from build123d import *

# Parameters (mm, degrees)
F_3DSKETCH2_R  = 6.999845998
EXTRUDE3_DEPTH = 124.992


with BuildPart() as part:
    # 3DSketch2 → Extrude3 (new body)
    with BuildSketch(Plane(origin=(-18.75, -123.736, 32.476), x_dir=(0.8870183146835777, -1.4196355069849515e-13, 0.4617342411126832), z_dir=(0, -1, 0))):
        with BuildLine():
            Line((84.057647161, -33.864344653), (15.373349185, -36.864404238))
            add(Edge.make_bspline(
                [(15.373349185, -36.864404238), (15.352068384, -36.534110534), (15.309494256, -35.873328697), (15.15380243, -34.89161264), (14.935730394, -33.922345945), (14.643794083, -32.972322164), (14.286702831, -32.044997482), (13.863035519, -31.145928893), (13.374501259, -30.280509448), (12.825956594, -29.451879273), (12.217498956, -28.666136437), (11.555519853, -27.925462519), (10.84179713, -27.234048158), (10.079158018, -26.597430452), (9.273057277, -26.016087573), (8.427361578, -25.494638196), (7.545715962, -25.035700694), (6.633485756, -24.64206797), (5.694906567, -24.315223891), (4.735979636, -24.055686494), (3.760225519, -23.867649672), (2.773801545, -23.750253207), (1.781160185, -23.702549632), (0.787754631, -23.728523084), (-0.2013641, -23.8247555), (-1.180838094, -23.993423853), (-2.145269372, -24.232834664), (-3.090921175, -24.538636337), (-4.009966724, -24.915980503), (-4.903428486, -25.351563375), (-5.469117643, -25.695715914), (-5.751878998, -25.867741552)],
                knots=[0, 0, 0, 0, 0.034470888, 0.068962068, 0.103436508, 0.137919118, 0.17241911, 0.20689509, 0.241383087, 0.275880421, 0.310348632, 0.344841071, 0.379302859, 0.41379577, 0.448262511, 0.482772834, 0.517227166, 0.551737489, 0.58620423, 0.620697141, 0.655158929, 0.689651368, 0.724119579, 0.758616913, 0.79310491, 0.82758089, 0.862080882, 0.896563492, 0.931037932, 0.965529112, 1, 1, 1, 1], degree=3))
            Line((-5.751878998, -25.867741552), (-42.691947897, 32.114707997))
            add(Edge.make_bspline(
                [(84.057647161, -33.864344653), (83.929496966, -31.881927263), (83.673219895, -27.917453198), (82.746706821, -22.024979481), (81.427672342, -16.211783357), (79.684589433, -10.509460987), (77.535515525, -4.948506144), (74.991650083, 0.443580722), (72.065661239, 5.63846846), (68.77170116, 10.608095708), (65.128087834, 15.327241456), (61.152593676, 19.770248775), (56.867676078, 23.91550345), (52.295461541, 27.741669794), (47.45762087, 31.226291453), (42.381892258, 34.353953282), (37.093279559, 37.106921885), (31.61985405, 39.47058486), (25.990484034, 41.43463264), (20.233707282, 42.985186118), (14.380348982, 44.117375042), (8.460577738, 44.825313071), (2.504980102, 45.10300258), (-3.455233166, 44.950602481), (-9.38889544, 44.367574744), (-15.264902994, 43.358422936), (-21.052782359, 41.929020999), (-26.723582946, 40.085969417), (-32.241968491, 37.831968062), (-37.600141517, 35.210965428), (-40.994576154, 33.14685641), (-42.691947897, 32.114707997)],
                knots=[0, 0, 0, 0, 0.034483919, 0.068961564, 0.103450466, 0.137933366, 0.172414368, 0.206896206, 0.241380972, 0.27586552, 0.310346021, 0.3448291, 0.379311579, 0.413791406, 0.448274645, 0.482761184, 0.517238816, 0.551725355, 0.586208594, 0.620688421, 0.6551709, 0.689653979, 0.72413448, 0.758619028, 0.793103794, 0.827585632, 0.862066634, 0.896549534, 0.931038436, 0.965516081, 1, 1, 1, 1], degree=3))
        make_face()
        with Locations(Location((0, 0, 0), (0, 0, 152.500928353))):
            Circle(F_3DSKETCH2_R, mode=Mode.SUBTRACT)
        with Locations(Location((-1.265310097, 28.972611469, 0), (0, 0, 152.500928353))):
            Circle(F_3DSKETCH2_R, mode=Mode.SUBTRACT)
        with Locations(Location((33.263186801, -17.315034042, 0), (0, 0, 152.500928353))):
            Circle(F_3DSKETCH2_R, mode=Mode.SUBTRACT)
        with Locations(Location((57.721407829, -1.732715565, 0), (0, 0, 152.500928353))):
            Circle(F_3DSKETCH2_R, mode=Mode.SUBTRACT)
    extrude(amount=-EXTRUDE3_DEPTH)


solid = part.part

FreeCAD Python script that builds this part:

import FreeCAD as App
import Part
import Sketcher

V = App.Vector

doc = App.newDocument("Part")
body = doc.addObject("PartDesign::Body", "Body")

# Sketch on XZ plane
sketch1 = doc.addObject("Sketcher::SketchObject", "Sketch")
body.addObject(sketch1)
sketch1.AttachmentSupport = (doc.XZ_Plane, [""])
sketch1.MapMode = "FlatFace"
sketch1.AttachmentOffset = App.Placement(V(0, 0, 123.736), App.Rotation())
sketch1.addGeometry([
    Part.LineSegment(V(11.908, 6.875, 0), V(71.447, 41.25, 0)),  # 0
    Part.BSplineCurve([V(71.447, 41.25, 0), V(70.417978, 42.949269, 0), V(68.360123, 46.347498, 0), V(64.817532, 51.146428, 0), V(60.963372, 55.693796, 0), V(56.784268, 59.947019, 0), V(52.310317, 63.887387, 0), V(47.564151, 67.495677, 0), V(42.570087, 70.752608, 0), V(37.353637, 73.639824, 0), V(31.942695, 76.143412, 0), V(26.36487, 78.248819, 0), V(20.650063, 79.947243, 0), V(14.827753, 81.229974, 0), V(8.927531, 82.087101, 0), V(2.981118, 82.517757, 0), V(-2.981118, 82.517757, 0), V(-8.927531, 82.087101, 0), V(-14.827753, 81.229974, 0), V(-20.650063, 79.947243, 0), V(-26.36487, 78.248819, 0), V(-31.942694, 76.143412, 0), V(-37.353637, 73.639824, 0), V(-42.570087, 70.752608, 0), V(-47.564151, 67.495677, 0), V(-52.310317, 63.887387, 0), V(-56.784268, 59.947019, 0), V(-60.963372, 55.693796, 0), V(-64.817532, 51.146428, 0), V(-68.360123, 46.347498, 0), V(-70.417978, 42.949269, 0), V(-71.447, 41.25, 0)], [4, 1, 1, 1, 1, 1, 1, 1, 1, 1, 1, 1, 1, 1, 1, 1, 1, 1, 1, 1, 1, 1, 1, 1, 1, 1, 1, 1, 1, 4], [0, 0.034483919, 0.068961564, 0.103450466, 0.137933366, 0.172414368, 0.206896206, 0.241380972, 0.27586552, 0.310346021, 0.3448291, 0.379311579, 0.413791406, 0.448274645, 0.482761184, 0.517238816, 0.551725355, 0.586208594, 0.620688421, 0.6551709, 0.689653979, 0.72413448, 0.758619028, 0.793103794, 0.827585632, 0.862066634, 0.896549534, 0.931038436, 0.965516081, 1], False, 3, [1, 1, 1, 1, 1, 1, 1, 1, 1, 1, 1, 1, 1, 1, 1, 1, 1, 1, 1, 1, 1, 1, 1, 1, 1, 1, 1, 1, 1, 1, 1, 1], False),  # 1
    Part.LineSegment(V(-71.447, 41.25, 0), V(-11.908, 6.875, 0)),  # 2
    Part.BSplineCurve([V(11.908, 6.875, 0), V(11.736616, 7.15815, 0), V(11.393746, 7.724618, 0), V(10.802353, 8.52353, 0), V(10.161375, 9.282596, 0), V(9.463764, 9.990487, 0), V(8.71884, 10.64816, 0), V(7.927908, 11.250029, 0), V(7.094976, 11.792099, 0), V(6.2258, 12.273827, 0), V(5.323282, 12.68985, 0), V(4.3941, 13.041182, 0), V(3.441765, 13.324929, 0), V(2.471342, 13.537484, 0), V(1.48789, 13.680942, 0), V(0.496971, 13.75299, 0), V(-0.496971, 13.75299, 0), V(-1.48789, 13.680942, 0), V(-2.471342, 13.537484, 0), V(-3.441765, 13.324929, 0), V(-4.3941, 13.041182, 0), V(-5.323282, 12.68985, 0), V(-6.2258, 12.273827, 0), V(-7.094976, 11.792099, 0), V(-7.927908, 11.250029, 0), V(-8.71884, 10.64816, 0), V(-9.463764, 9.990488, 0), V(-10.161375, 9.282596, 0), V(-10.802353, 8.52353, 0), V(-11.393746, 7.724618, 0), V(-11.736616, 7.15815, 0), V(-11.908, 6.875, 0)], [4, 1, 1, 1, 1, 1, 1, 1, 1, 1, 1, 1, 1, 1, 1, 1, 1, 1, 1, 1, 1, 1, 1, 1, 1, 1, 1, 1, 1, 4], [0, 0.034470888, 0.068962068, 0.103436508, 0.137919118, 0.17241911, 0.20689509, 0.241383087, 0.275880421, 0.310348632, 0.344841071, 0.379302859, 0.41379577, 0.448262511, 0.482772834, 0.517227166, 0.551737489, 0.58620423, 0.620697141, 0.655158929, 0.689651368, 0.724119579, 0.758616913, 0.79310491, 0.82758089, 0.862080882, 0.896563492, 0.931037932, 0.965529112, 1], False, 3, [1, 1, 1, 1, 1, 1, 1, 1, 1, 1, 1, 1, 1, 1, 1, 1, 1, 1, 1, 1, 1, 1, 1, 1, 1, 1, 1, 1, 1, 1, 1, 1], False),  # 3
    Part.Circle(V(18.75, 32.476, 0), V(0, 0, 1), 6.999846),  # 4
    Part.Circle(V(33.25, 57.591, 0), V(0, 0, 1), 6.999846),  # 5
    Part.Circle(V(-18.75, 32.476, 0), V(0, 0, 1), 6.999846),  # 6
    Part.Circle(V(-33.25, 57.591, 0), V(0, 0, 1), 6.999846),  # 7
], False)
sketch1.addConstraint([
    Sketcher.Constraint("Block", 1),
    Sketcher.Constraint("Block", 3),
    Sketcher.Constraint("Coincident", 0, 2, 1, 1),
    Sketcher.Constraint("Coincident", 1, 2, 2, 1),
    Sketcher.Constraint("Coincident", 2, 2, 3, 2),
    Sketcher.Constraint("Coincident", 3, 1, 0, 1),
    Sketcher.Constraint("Equal", 4, 5),
    Sketcher.Constraint("Equal", 5, 6),
    Sketcher.Constraint("Equal", 6, 7),
    Sketcher.Constraint("Symmetric", 4, 3, 6, 3, -2),
    Sketcher.Constraint("Symmetric", 5, 3, 7, 3, -2),
    Sketcher.Constraint("DistanceX", 6, 3, 5, 3, 52.0),
    Sketcher.Constraint("DistanceX", 4, 3, 5, 3, 14.5),
    Sketcher.Constraint("Diameter", 4, 13.999692),
    Sketcher.Constraint("DistanceY", -1, 1, 4, 3, 32.476),
    Sketcher.Constraint("DistanceY", -1, 1, 5, 3, 57.591),
])
pad1 = doc.addObject("PartDesign::Pad", "Pad")
body.addObject(pad1)
pad1.Profile = sketch1
pad1.Length = 124.992
pad1.Reversed = True

doc.recompute()
